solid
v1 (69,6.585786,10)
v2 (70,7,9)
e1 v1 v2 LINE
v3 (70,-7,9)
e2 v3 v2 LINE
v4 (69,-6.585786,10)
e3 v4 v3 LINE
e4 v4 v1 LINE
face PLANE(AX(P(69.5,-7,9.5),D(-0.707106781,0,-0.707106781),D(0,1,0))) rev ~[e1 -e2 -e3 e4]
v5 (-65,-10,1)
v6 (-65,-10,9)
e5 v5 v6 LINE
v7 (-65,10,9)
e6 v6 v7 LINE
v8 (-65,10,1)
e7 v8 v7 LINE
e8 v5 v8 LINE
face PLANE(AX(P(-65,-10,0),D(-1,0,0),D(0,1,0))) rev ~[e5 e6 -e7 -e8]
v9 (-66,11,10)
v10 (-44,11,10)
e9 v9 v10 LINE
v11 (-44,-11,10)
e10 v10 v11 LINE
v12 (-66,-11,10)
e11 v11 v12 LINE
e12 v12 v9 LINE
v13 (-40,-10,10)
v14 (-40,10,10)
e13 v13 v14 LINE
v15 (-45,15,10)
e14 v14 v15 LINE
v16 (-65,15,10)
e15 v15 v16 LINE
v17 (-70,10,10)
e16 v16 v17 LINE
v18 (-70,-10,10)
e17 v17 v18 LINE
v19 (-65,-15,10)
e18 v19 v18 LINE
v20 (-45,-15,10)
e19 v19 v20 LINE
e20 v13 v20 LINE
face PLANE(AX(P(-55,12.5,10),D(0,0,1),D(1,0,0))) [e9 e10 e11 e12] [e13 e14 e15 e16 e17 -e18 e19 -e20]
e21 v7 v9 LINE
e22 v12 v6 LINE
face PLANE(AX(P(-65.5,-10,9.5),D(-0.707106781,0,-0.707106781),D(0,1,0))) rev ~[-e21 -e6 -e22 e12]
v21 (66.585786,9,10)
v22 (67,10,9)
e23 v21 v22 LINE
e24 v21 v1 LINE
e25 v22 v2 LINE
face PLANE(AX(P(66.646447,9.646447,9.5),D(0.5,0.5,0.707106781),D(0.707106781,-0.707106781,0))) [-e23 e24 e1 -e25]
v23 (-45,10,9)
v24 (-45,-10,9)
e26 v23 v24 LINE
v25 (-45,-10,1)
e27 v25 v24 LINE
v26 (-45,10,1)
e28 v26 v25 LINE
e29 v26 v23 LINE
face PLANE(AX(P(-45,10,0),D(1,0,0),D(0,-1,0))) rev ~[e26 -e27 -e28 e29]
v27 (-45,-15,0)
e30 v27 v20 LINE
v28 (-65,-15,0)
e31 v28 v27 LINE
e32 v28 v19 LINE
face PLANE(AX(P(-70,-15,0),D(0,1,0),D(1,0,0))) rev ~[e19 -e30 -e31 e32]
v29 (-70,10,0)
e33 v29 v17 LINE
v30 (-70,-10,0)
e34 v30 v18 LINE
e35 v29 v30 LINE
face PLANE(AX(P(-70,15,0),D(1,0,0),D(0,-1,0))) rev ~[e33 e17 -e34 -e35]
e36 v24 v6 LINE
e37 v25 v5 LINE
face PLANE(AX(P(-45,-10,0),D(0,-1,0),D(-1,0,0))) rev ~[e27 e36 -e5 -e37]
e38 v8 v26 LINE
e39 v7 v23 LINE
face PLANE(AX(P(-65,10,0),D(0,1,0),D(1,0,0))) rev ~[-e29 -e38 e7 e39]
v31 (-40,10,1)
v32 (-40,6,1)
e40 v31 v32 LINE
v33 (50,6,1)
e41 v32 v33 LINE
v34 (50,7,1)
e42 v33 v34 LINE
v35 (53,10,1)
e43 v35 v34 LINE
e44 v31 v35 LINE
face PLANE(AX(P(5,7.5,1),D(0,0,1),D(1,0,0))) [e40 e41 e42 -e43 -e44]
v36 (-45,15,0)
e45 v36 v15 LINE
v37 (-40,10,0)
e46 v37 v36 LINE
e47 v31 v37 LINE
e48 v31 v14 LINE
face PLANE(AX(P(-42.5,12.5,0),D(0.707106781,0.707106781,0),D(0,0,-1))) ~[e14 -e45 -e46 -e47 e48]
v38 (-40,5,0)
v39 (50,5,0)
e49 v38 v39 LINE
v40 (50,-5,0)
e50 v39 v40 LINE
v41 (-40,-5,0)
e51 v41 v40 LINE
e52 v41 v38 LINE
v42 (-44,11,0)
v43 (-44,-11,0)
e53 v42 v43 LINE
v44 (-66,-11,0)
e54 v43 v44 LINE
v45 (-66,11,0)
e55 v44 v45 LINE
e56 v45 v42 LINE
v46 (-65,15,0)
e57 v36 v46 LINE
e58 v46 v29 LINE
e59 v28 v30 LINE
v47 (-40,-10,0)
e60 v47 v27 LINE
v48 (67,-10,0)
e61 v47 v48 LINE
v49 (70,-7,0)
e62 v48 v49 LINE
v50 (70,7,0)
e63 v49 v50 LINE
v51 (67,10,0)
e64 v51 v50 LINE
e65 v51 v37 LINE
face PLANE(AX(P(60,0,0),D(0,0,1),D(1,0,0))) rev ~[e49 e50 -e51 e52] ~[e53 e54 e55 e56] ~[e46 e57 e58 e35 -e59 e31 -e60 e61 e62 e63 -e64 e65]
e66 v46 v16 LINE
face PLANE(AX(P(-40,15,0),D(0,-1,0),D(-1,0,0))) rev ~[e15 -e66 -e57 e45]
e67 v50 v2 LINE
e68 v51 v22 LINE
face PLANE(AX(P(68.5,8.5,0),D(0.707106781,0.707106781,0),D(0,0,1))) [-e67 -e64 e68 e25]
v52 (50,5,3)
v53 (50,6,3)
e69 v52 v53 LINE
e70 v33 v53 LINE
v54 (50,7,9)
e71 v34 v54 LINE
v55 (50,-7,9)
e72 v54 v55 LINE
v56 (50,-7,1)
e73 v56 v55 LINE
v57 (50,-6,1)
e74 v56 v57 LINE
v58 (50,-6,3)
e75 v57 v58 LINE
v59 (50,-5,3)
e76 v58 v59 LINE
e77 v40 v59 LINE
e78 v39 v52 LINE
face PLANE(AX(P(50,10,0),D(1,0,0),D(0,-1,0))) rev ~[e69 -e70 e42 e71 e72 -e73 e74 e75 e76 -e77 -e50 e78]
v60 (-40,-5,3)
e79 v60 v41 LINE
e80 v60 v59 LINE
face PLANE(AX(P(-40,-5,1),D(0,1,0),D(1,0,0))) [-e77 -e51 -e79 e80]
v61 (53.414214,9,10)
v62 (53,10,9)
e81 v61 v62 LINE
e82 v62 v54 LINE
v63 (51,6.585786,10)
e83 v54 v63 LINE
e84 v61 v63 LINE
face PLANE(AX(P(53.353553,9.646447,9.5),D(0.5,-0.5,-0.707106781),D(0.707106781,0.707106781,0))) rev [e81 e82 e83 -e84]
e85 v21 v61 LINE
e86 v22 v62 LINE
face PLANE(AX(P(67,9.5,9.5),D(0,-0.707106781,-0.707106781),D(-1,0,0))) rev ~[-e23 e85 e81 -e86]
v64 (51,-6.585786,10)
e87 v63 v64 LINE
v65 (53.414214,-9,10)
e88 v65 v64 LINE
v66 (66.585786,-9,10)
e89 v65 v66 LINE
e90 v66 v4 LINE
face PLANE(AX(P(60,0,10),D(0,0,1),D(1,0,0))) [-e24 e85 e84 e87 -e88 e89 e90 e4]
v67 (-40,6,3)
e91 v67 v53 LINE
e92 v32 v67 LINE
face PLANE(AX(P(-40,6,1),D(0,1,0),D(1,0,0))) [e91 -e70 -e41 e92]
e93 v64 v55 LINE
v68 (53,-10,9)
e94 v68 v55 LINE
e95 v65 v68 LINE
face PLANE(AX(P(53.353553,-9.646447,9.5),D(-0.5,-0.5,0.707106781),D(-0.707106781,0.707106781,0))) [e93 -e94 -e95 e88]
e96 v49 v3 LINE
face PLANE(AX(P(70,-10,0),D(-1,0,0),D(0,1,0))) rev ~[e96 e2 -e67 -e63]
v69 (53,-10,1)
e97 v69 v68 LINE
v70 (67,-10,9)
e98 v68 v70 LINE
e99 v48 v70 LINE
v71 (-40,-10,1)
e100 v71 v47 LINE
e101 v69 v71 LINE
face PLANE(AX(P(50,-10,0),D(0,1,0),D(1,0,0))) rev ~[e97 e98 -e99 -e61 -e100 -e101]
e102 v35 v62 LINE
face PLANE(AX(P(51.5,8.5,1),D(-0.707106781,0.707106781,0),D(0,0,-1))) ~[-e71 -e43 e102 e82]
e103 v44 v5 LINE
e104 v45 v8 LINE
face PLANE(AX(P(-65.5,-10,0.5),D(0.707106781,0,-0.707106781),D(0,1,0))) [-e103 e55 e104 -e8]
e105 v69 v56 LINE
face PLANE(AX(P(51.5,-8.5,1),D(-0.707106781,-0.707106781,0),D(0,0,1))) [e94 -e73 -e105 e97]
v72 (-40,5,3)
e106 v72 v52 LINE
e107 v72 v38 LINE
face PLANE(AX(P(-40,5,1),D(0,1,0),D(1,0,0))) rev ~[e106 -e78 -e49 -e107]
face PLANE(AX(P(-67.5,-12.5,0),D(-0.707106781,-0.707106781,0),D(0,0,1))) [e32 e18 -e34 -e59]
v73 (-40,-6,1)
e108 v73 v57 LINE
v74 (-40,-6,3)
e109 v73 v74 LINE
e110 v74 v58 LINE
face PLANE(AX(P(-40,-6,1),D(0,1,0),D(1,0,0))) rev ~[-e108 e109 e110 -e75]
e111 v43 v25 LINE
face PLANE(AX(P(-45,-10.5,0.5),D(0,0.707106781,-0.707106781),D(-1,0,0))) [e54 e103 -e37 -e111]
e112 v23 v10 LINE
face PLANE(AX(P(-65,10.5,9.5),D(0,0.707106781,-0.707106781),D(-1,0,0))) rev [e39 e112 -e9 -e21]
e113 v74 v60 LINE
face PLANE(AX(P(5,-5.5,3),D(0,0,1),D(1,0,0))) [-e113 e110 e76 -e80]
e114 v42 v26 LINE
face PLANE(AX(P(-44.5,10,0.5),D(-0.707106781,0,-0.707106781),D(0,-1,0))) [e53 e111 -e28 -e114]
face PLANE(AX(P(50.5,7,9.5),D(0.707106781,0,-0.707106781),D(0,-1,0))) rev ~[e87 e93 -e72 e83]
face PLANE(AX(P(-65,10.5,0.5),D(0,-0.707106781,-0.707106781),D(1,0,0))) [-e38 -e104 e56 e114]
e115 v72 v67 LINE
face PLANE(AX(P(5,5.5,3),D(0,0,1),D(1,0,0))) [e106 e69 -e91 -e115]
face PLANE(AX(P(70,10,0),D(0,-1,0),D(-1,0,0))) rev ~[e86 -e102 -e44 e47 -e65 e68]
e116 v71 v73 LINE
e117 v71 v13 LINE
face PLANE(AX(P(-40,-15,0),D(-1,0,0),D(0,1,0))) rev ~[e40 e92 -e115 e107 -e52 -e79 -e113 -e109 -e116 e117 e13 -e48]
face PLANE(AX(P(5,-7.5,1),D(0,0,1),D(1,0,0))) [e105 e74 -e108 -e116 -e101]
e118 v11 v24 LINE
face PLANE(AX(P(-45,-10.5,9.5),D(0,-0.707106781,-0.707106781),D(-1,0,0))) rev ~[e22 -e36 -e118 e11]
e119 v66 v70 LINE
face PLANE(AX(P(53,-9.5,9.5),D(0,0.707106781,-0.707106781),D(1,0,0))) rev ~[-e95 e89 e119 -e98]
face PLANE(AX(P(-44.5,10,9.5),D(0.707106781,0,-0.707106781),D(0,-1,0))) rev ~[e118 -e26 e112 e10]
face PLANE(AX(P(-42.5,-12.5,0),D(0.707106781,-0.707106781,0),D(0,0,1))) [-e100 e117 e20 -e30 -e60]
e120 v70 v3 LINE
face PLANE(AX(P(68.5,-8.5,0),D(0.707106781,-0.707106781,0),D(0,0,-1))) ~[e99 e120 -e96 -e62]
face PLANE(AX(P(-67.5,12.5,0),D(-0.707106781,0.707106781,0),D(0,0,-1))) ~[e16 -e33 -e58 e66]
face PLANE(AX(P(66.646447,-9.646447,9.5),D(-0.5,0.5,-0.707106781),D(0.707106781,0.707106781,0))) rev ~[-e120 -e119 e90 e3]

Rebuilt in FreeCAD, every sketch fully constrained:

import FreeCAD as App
import Part
import Sketcher
Q = App.Units.Quantity


def edges_at(feature, points):
    """Names of the edges that pass closest to the given points."""
    edges = feature.Shape.Edges
    near = lambda p: min(range(len(edges)), key=lambda i: edges[i].distToShape(Part.Vertex(*p))[0])
    return sorted({f"Edge{near(p) + 1}" for p in points})


def add_polygon(sketch, points):
    """Adds a closed chain of lines whose ends are joined by coincident constraints."""
    first, n = sketch.GeometryCount, len(points)
    for a, b in zip(points, points[1:] + points[:1]):
        sketch.addGeometry(Part.LineSegment(App.Vector(*a, 0), App.Vector(*b, 0)), False)
    for i in range(n):
        sketch.addConstraint(Sketcher.Constraint("Coincident", first + i, 2, first + (i + 1) % n, 1))

doc = App.newDocument("Part")
body = doc.addObject("PartDesign::Body", "Body")

sketch1 = body.newObject("Sketcher::SketchObject", "Sketch")
sketch1.AttachmentSupport = (doc.getObject("XY_Plane"), [""])
sketch1.MapMode = "FlatFace"
add_polygon(sketch1, [(-40, -5), (-40, -10), (50, -10), (50, -5)])
sketch1.addConstraint(Sketcher.Constraint("Vertical", 0))
sketch1.addConstraint(Sketcher.Constraint("Horizontal", 1))
sketch1.addConstraint(Sketcher.Constraint("Vertical", 2))
sketch1.addConstraint(Sketcher.Constraint("Horizontal", 3))
sketch1.addConstraint(Sketcher.Constraint("DistanceX", 1, 1, 1, 2, Q("90 mm")))
sketch1.addConstraint(Sketcher.Constraint("DistanceY", 0, 2, 0, 1, Q("5 mm")))
sketch1.addConstraint(Sketcher.Constraint("DistanceX", 0, 2, -1, 1, Q("40 mm")))
sketch1.addConstraint(Sketcher.Constraint("DistanceY", 0, 2, -1, 1, Q("10 mm")))
pad1 = body.newObject("PartDesign::Pad", "Pad")
pad1.Profile = sketch1
pad1.Length = 1
body2 = doc.addObject("PartDesign::Body", "Body001")

sketch2 = body2.newObject("Sketcher::SketchObject", "Sketch001")
sketch2.AttachmentSupport = (doc.getObject("XY_Plane001"), [""])
sketch2.MapMode = "FlatFace"
add_polygon(sketch2, [(50, 5), (50, 10), (-40, 10), (-40, 5)])
sketch2.addConstraint(Sketcher.Constraint("Vertical", 0))
sketch2.addConstraint(Sketcher.Constraint("Horizontal", 1))
sketch2.addConstraint(Sketcher.Constraint("Vertical", 2))
sketch2.addConstraint(Sketcher.Constraint("Horizontal", 3))
sketch2.addConstraint(Sketcher.Constraint("DistanceX", 1, 2, 1, 1, Q("90 mm")))
sketch2.addConstraint(Sketcher.Constraint("DistanceY", 0, 1, 0, 2, Q("5 mm")))
sketch2.addConstraint(Sketcher.Constraint("DistanceX", -1, 1, 0, 2, Q("50 mm")))
sketch2.addConstraint(Sketcher.Constraint("DistanceY", -1, 1, 0, 2, Q("10 mm")))
pad2 = body2.newObject("PartDesign::Pad", "Pad001")
pad2.Profile = sketch2
pad2.Length = 1
body.AllowCompound = True
doc.recompute()

boolean = body.newObject("PartDesign::Boolean", "Boolean")
boolean.Type = "Fuse"
boolean.addObjects([body2])

sketch3 = body.newObject("Sketcher::SketchObject", "Sketch002")
sketch3.AttachmentSupport = (doc.getObject("XY_Plane"), [""])
sketch3.MapMode = "FlatFace"
add_polygon(sketch3, [(70, -10), (70, 10), (50, 10), (50, -10)])
add_polygon(sketch3, [(-40, 15), (-70, 15), (-70, -15), (-40, -15)])
add_polygon(sketch3, [(-65, -10), (-65, 10), (-45, 10), (-45, -10)])
sketch3.addConstraint(Sketcher.Constraint("Vertical", 0))
sketch3.addConstraint(Sketcher.Constraint("Horizontal", 1))
sketch3.addConstraint(Sketcher.Constraint("Vertical", 2))
sketch3.addConstraint(Sketcher.Constraint("Horizontal", 3))
sketch3.addConstraint(Sketcher.Constraint("Horizontal", 4))
sketch3.addConstraint(Sketcher.Constraint("Vertical", 5))
sketch3.addConstraint(Sketcher.Constraint("Horizontal", 6))
sketch3.addConstraint(Sketcher.Constraint("Vertical", 7))
sketch3.addConstraint(Sketcher.Constraint("Vertical", 8))
sketch3.addConstraint(Sketcher.Constraint("Horizontal", 9))
sketch3.addConstraint(Sketcher.Constraint("Vertical", 10))
sketch3.addConstraint(Sketcher.Constraint("Horizontal", 11))
sketch3.addConstraint(Sketcher.Constraint("Horizontal", 1, 2, 8, 2))
sketch3.addConstraint(Sketcher.Constraint("Horizontal", 3, 2, 10, 2))
sketch3.addConstraint(Sketcher.Constraint("Equal", 3, 9))
sketch3.addConstraint(Sketcher.Constraint("Equal", 11, 0))
sketch3.addConstraint(Sketcher.Constraint("Equal", 6, 5))
sketch3.addConstraint(Sketcher.Constraint("DistanceX", 1, 2, 1, 1, Q("20 mm")))
sketch3.addConstraint(Sketcher.Constraint("DistanceX", 4, 2, 4, 1, Q("30 mm")))
sketch3.addConstraint(Sketcher.Constraint("DistanceX", -1, 1, 0, 2, Q("70 mm")))
sketch3.addConstraint(Sketcher.Constraint("DistanceY", -1, 1, 0, 2, Q("10 mm")))
sketch3.addConstraint(Sketcher.Constraint("DistanceX", 4, 2, -1, 1, Q("70 mm")))
sketch3.addConstraint(Sketcher.Constraint("DistanceY", -1, 1, 4, 2, Q("15 mm")))
sketch3.addConstraint(Sketcher.Constraint("DistanceX", 8, 2, -1, 1, Q("65 mm")))
pad3 = body.newObject("PartDesign::Pad", "Pad002")
pad3.Profile = sketch3
pad3.Length = 10

sketch4 = body.newObject("Sketcher::SketchObject", "Sketch003")
sketch4.AttachmentSupport = (doc.getObject("XY_Plane"), [""])
sketch4.MapMode = "FlatFace"
sketch4.AttachmentOffset = App.Placement(App.Vector(0, 0, 1), App.Rotation())
add_polygon(sketch4, [(-40, 6), (-40, 5), (50, 5), (50, 6)])
add_polygon(sketch4, [(-40, -5), (-40, -6), (50, -6), (50, -5)])
sketch4.addConstraint(Sketcher.Constraint("Vertical", 0))
sketch4.addConstraint(Sketcher.Constraint("Horizontal", 1))
sketch4.addConstraint(Sketcher.Constraint("Vertical", 2))
sketch4.addConstraint(Sketcher.Constraint("Horizontal", 3))
sketch4.addConstraint(Sketcher.Constraint("Vertical", 4))
sketch4.addConstraint(Sketcher.Constraint("Horizontal", 5))
sketch4.addConstraint(Sketcher.Constraint("Vertical", 6))
sketch4.addConstraint(Sketcher.Constraint("Horizontal", 7))
sketch4.addConstraint(Sketcher.Constraint("Symmetric", 3, 2, 4, 2, -1))
sketch4.addConstraint(Sketcher.Constraint("Symmetric", 1, 2, 6, 2, -1))
sketch4.addConstraint(Sketcher.Constraint("DistanceX", 1, 1, 1, 2, Q("90 mm")))
sketch4.addConstraint(Sketcher.Constraint("DistanceY", 0, 2, 0, 1, Q("1 mm")))
sketch4.addConstraint(Sketcher.Constraint("DistanceX", 0, 2, -1, 1, Q("40 mm")))
sketch4.addConstraint(Sketcher.Constraint("DistanceY", -1, 1, 0, 2, Q("5 mm")))
pad4 = body.newObject("PartDesign::Pad", "Pad003")
pad4.Profile = sketch4
pad4.Length = 2
doc.recompute()

chamfer = body.newObject("PartDesign::Chamfer", "Chamfer")
chamfer.Base = (pad4, edges_at(pad4, [
    (70, -10, 5),
    (70, 10, 5),
    (50, -10, 5.5),
    (50, 10, 5.5),
]))
chamfer.Size = 3
doc.recompute()

chamfer2 = body.newObject("PartDesign::Chamfer", "Chamfer001")
chamfer2.Base = (chamfer, edges_at(chamfer, [
    (60, 10, 10),
    (51.5, 8.5, 10),
    (50, 0, 10),
    (51.5, -8.5, 10),
    (60, -10, 10),
    (68.5, -8.5, 10),
    (70, 0, 10),
    (68.5, 8.5, 10),
    (-55, 10, 10),
    (-65, 0, 10),
    (-55, -10, 10),
    (-45, 0, 10),
    (-65, 0, 0),
    (-55, -10, 0),
    (-45, 0, 0),
    (-55, 10, 0),
]))
chamfer2.Size = 1
doc.recompute()

chamfer3 = body.newObject("PartDesign::Chamfer", "Chamfer002")
chamfer3.Base = (chamfer2, edges_at(chamfer2, [
    (-40, 15, 5),
    (-70, 15, 5),
    (-70, -15, 5),
    (-40, -15, 5),
]))
chamfer3.Size = 5

doc.recompute()
